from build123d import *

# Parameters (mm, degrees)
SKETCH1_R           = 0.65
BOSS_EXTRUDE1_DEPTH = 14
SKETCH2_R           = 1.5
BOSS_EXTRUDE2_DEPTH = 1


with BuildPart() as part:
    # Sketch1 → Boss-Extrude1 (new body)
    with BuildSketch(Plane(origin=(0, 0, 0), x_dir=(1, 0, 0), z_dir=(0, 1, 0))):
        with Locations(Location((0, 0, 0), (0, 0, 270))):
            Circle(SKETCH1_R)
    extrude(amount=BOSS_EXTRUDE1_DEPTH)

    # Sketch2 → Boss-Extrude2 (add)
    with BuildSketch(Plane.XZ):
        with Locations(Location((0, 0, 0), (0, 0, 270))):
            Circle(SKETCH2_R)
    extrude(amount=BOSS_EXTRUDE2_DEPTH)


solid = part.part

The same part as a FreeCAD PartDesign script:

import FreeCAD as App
import Part
import Sketcher
from FreeCAD import Vector

doc = App.newDocument("Part")
body = doc.addObject("PartDesign::Body", "Body")

# Sketch on XZ plane
sketch1 = body.newObject("Sketcher::SketchObject", "Sketch")
sketch1.AttachmentSupport = (doc.getObject("XZ_Plane"), [""])
sketch1.MapMode = "FlatFace"
sketch1.addGeometry(Part.Circle(Vector(0, 0, 0), Vector(0, 0, 1), 0.7), False)
sketch1.addConstraint([
    Sketcher.Constraint("Coincident", 0, 3, -1, 1),
    Sketcher.Constraint("Diameter", 0, 1.3),
])
pad1 = body.newObject("PartDesign::Pad", "Pad")
pad1.Profile = sketch1
pad1.Length = 14
pad1.Reversed = True

# Sketch on XZ plane
sketch2 = body.newObject("Sketcher::SketchObject", "Sketch001")
sketch2.AttachmentSupport = (doc.getObject("XZ_Plane"), [""])
sketch2.MapMode = "FlatFace"
sketch2.addGeometry(Part.Circle(Vector(0, 0, 0), Vector(0, 0, 1), 1.5), False)
sketch2.addConstraint([
    Sketcher.Constraint("Coincident", 0, 3, -1, 1),
    Sketcher.Constraint("Diameter", 0, 3.0),
])
pad2 = body.newObject("PartDesign::Pad", "Pad001")
pad2.Profile = sketch2
pad2.Length = 1

doc.recompute()
